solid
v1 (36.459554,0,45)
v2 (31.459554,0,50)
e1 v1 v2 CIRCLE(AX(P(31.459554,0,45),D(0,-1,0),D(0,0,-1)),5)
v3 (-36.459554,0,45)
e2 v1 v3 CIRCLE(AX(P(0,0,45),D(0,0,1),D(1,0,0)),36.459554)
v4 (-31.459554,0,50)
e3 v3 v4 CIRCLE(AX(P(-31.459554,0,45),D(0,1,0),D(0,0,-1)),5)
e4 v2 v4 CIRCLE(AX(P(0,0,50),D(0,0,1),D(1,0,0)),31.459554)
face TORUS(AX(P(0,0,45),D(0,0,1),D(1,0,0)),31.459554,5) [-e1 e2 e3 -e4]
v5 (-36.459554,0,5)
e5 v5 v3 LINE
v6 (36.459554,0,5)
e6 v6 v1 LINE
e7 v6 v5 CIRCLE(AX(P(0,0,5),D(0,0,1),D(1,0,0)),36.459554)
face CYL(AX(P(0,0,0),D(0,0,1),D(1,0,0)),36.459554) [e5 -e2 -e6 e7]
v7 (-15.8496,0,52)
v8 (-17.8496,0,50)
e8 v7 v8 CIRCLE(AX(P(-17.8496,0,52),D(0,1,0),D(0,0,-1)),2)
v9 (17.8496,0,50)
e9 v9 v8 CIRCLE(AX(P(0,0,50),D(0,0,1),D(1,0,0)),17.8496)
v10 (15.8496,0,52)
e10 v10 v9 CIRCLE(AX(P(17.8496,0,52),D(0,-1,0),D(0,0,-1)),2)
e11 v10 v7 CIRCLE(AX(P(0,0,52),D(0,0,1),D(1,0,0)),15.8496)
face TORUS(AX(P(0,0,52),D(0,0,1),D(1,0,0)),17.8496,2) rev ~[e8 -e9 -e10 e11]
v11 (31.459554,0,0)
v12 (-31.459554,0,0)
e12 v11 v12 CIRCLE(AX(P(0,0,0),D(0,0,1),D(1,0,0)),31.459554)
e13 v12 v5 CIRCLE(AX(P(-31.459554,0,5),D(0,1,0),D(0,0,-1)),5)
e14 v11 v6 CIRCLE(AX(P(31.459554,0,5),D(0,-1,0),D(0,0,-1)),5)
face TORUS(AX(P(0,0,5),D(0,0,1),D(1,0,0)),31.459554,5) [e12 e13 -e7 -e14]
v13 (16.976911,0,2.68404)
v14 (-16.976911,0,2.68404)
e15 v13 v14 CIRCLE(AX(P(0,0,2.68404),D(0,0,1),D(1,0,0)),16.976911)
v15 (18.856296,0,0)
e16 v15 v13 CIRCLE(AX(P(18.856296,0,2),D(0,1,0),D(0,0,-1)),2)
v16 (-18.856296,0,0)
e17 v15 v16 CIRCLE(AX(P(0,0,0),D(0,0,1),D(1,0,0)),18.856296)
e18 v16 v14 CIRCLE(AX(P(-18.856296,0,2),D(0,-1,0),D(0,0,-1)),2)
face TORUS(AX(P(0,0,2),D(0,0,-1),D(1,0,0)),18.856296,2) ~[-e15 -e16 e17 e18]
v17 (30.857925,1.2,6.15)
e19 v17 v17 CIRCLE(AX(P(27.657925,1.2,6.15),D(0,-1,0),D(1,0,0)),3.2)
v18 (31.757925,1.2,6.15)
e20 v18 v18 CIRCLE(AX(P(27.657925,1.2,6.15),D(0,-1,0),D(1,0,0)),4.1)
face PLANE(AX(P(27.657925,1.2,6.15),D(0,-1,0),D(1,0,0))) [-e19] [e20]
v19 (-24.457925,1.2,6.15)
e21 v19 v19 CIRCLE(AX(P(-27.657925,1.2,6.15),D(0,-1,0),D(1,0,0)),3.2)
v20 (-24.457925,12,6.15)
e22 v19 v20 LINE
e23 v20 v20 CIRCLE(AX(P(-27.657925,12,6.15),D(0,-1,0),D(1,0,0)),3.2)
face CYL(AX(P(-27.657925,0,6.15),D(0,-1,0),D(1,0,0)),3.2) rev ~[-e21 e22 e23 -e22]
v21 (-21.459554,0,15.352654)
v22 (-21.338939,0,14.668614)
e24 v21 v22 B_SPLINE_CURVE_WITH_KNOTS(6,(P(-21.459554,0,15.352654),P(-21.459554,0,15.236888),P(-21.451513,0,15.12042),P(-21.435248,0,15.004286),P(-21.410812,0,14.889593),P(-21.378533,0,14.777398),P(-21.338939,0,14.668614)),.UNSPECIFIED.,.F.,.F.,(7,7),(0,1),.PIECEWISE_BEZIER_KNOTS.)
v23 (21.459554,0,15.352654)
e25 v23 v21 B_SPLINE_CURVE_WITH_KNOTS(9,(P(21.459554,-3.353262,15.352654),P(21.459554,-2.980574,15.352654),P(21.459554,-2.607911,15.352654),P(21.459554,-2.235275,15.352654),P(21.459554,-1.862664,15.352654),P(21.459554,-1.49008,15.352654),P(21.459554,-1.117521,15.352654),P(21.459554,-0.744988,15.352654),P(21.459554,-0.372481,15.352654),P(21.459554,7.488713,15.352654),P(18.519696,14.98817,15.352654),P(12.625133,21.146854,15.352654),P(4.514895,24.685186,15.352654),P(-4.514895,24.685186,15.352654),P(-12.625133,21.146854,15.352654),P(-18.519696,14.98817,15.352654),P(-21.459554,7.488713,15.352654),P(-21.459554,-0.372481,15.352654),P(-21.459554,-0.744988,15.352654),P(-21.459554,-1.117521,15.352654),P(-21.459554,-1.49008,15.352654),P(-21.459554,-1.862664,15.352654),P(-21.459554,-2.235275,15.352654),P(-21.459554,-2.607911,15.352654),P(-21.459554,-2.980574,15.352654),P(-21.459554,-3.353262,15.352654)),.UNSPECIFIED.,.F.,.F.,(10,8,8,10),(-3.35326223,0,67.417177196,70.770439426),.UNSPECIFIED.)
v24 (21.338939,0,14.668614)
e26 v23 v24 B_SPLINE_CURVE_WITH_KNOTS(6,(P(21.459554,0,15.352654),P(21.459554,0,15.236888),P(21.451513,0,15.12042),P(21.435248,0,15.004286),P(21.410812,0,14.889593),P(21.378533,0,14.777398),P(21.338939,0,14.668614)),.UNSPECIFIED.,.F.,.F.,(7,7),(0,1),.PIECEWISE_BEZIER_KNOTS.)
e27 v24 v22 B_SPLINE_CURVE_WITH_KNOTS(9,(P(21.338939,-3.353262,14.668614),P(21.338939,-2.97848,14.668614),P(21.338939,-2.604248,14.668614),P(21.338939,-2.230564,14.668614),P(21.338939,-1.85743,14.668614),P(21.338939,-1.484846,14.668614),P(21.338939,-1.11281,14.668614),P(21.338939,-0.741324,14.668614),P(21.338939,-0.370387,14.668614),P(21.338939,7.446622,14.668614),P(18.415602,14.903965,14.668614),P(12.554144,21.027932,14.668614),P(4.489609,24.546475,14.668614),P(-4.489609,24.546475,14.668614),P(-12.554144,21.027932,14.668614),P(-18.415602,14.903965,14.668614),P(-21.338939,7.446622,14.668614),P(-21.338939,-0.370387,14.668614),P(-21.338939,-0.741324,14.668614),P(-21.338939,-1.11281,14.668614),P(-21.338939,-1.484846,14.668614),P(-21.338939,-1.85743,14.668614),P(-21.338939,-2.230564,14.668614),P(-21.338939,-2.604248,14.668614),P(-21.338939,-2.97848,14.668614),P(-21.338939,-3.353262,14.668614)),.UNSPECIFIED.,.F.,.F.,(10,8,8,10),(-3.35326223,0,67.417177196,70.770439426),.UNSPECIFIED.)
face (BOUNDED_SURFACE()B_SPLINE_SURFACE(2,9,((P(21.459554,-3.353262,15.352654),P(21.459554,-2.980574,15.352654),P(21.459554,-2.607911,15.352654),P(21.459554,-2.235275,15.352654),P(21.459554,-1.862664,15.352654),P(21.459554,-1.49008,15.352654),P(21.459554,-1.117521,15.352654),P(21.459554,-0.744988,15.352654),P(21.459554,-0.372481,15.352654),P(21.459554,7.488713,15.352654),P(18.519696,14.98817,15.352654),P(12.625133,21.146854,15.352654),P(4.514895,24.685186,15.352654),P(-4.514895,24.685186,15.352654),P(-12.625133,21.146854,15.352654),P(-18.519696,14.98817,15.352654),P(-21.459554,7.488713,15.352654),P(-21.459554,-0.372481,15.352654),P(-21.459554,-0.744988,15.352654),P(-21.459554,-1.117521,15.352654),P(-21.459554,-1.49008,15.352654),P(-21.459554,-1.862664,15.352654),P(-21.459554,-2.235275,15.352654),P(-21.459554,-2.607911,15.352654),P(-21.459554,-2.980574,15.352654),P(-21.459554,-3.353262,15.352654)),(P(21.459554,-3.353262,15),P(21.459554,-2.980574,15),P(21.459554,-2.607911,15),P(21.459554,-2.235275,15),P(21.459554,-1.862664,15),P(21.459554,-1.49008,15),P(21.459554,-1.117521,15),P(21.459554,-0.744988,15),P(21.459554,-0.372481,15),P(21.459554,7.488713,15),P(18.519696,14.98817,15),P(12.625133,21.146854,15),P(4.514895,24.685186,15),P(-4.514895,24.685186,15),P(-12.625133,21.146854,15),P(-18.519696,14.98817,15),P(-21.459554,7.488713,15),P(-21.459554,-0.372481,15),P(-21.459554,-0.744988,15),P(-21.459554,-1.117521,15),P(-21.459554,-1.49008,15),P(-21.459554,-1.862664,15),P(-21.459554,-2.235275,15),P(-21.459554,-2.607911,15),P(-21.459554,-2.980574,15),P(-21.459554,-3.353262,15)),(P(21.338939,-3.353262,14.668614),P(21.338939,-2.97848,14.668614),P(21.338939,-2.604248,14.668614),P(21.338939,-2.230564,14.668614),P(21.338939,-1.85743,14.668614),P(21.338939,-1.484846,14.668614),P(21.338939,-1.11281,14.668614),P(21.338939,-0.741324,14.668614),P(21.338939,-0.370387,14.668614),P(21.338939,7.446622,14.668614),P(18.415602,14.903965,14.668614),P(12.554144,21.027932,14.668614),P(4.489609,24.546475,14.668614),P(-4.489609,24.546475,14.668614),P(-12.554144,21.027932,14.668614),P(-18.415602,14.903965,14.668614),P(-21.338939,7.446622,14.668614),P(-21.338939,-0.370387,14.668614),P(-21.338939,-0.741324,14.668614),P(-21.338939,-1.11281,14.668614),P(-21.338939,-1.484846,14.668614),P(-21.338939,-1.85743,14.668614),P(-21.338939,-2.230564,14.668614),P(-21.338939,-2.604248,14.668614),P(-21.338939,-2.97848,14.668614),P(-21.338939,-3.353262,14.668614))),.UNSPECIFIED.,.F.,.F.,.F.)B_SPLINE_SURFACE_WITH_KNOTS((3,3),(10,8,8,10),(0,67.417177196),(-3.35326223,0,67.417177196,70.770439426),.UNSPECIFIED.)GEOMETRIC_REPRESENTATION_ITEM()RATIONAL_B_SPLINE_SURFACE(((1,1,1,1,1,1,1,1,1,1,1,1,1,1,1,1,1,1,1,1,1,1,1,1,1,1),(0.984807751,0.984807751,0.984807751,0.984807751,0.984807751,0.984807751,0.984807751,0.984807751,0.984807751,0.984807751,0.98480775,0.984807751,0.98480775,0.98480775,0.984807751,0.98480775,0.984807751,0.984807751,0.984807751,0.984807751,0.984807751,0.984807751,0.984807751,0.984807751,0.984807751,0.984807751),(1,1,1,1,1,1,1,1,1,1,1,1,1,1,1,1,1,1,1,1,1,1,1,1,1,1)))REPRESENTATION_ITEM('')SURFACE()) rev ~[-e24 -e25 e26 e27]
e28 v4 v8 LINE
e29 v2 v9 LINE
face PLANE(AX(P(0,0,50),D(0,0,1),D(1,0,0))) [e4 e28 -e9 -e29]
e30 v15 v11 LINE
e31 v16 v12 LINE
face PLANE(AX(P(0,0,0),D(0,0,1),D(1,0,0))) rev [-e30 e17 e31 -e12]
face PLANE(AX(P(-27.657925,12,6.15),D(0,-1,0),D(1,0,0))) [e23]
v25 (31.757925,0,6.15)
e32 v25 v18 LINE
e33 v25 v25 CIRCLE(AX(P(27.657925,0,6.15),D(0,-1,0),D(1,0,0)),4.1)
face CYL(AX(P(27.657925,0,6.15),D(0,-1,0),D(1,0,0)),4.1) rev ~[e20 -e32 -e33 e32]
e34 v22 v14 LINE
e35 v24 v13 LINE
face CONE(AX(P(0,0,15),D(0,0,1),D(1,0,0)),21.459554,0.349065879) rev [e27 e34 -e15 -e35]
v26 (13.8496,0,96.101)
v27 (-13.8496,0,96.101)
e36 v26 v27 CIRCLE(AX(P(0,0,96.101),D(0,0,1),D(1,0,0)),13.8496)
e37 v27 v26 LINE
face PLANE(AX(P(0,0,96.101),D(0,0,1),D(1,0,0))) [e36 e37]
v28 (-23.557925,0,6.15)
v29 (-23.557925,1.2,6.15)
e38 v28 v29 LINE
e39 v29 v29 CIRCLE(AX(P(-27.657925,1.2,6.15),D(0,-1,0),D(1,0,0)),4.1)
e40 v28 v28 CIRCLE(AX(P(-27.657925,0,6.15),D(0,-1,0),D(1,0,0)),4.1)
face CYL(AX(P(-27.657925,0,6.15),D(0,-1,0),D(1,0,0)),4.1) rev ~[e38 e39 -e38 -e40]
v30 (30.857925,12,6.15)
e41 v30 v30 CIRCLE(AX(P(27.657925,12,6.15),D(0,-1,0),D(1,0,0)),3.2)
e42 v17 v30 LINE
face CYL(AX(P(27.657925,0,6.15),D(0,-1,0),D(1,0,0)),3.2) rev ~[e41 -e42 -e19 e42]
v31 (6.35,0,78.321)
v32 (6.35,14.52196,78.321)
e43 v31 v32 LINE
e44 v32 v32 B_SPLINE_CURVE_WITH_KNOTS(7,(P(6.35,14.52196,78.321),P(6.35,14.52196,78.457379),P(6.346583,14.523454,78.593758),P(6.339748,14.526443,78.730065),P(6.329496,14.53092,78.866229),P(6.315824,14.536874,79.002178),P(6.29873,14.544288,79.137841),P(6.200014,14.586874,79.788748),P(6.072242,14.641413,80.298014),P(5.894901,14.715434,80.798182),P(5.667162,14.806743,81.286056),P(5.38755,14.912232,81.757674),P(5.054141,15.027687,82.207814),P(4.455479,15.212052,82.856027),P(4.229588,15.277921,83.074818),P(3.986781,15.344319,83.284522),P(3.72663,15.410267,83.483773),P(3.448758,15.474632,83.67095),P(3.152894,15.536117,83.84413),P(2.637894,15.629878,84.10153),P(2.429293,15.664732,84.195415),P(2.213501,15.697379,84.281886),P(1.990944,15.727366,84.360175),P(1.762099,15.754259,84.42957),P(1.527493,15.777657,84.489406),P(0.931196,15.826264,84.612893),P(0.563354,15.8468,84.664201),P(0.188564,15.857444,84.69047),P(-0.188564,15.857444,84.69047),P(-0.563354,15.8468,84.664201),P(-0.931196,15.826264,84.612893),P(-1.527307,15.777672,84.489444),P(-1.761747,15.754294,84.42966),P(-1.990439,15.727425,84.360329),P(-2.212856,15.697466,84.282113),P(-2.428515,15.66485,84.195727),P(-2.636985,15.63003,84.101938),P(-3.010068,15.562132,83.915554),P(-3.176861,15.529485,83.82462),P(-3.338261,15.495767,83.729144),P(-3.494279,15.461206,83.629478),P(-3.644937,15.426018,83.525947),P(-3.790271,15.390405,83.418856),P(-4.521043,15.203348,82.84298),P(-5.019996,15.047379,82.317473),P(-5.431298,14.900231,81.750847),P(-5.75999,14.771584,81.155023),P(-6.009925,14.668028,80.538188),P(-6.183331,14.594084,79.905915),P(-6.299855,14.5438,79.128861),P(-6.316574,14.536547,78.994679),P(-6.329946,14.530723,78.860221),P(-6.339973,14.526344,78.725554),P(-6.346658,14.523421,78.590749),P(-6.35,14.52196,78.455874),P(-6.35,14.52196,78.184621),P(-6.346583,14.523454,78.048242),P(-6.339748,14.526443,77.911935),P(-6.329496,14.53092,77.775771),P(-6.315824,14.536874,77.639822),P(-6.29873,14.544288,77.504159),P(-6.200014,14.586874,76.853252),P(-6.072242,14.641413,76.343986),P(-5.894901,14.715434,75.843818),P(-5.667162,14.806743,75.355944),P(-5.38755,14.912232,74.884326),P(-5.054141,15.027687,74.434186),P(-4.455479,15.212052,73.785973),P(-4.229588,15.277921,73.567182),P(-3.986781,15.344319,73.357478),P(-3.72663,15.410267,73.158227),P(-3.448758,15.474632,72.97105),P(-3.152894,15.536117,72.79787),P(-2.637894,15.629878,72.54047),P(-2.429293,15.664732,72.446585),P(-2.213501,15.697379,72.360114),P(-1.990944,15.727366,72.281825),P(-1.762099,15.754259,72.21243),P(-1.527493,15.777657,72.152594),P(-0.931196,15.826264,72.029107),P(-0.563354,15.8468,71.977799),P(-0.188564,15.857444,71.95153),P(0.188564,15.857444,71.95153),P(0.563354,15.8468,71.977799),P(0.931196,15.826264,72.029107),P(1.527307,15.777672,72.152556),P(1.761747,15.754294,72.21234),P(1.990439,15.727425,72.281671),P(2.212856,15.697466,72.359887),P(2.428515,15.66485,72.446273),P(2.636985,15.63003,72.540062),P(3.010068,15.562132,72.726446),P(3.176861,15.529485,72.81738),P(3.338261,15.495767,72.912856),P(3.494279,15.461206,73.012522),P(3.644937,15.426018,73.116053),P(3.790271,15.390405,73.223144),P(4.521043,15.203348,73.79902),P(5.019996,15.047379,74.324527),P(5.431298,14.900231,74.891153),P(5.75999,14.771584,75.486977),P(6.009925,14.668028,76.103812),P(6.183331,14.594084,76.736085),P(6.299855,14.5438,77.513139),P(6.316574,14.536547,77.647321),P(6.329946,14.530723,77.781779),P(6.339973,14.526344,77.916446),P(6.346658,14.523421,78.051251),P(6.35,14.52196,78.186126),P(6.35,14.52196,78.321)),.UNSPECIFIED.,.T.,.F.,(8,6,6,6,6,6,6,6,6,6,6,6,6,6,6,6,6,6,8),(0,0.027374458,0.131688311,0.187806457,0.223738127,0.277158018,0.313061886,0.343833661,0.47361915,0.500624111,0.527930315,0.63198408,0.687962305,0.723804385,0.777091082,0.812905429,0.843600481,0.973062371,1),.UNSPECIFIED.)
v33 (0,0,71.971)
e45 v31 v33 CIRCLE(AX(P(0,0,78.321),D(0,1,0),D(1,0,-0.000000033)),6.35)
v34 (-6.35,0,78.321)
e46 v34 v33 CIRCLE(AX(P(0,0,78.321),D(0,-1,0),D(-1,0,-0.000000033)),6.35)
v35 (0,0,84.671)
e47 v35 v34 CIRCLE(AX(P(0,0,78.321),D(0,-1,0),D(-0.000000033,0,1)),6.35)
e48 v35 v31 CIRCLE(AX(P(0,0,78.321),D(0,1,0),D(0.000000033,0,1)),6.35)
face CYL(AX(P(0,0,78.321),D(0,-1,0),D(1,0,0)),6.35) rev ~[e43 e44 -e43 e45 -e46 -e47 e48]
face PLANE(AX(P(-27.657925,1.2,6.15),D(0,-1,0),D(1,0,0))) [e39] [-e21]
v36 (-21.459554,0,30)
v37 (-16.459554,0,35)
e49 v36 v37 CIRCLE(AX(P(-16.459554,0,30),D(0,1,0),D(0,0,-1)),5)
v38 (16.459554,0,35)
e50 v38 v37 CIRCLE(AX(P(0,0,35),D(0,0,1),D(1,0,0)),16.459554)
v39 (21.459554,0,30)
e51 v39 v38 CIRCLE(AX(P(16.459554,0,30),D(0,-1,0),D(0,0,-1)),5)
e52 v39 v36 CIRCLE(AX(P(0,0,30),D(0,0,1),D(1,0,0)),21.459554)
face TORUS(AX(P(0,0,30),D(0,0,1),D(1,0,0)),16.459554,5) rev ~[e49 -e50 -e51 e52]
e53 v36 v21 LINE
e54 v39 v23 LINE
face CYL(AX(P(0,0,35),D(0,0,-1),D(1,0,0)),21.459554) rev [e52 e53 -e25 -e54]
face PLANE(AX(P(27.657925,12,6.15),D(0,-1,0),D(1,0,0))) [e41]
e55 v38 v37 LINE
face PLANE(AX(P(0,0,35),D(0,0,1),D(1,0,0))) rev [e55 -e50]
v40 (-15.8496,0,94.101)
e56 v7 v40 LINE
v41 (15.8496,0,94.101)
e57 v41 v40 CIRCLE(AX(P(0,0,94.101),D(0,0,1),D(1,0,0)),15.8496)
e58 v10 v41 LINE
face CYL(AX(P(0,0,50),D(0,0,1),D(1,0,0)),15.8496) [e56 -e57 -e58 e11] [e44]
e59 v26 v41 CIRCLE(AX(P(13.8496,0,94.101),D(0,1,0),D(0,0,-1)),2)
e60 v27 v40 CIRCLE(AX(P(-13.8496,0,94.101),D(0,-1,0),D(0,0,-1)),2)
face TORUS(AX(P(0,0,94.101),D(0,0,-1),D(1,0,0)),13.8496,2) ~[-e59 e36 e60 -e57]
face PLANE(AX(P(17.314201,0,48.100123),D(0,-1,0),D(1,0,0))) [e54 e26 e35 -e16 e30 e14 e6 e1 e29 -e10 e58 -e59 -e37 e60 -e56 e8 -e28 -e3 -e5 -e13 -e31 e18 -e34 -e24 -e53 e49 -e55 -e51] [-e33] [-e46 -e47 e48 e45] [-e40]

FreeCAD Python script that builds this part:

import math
import FreeCAD as App
import Part
import Sketcher
Q = App.Units.Quantity


def edges_at(feature, points):
    """Names of the edges that pass closest to the given points."""
    edges = feature.Shape.Edges
    near = lambda p: min(range(len(edges)), key=lambda i: edges[i].distToShape(Part.Vertex(*p))[0])
    return sorted({f"Edge{near(p) + 1}" for p in points})

doc = App.newDocument("Part")
body = doc.addObject("PartDesign::Body", "Body")

# Sketch on XZ plane
sketch1 = body.newObject("Sketcher::SketchObject", "Sketch")
sketch1.AttachmentSupport = (doc.getObject("XZ_Plane"), [""])
sketch1.MapMode = "FlatFace"
sketch1.addGeometry([
    Part.LineSegment(App.Vector(21, 35, 0), App.Vector(21, 15, 0)),  # 0
    Part.LineSegment(App.Vector(21, 15, 0), App.Vector(16, 0, 0)),  # 1
    Part.LineSegment(App.Vector(16, 0, 0), App.Vector(36, 0, 0)),  # 2
    Part.LineSegment(App.Vector(36, 0, 0), App.Vector(36, 50, 0)),  # 3
    Part.LineSegment(App.Vector(36, 50, 0), App.Vector(16, 50, 0)),  # 4
    Part.LineSegment(App.Vector(16, 50, 0), App.Vector(16, 96, 0)),  # 5
    Part.LineSegment(App.Vector(16, 96, 0), App.Vector(0, 96, 0)),  # 6
    Part.LineSegment(App.Vector(0, 96, 0), App.Vector(0, 85, 0)),  # 7
    Part.ArcOfCircle(Part.Circle(App.Vector(0, 78, 0), App.Vector(0, 0, 1), 6), math.radians(0), math.radians(90)),  # 8
    Part.ArcOfCircle(Part.Circle(App.Vector(0, 78, 0), App.Vector(0, 0, 1), 6), math.radians(-90), math.radians(0)),  # 9
    Part.LineSegment(App.Vector(0, 72, 0), App.Vector(0, 35, 0)),  # 10
    Part.LineSegment(App.Vector(0, 35, 0), App.Vector(21, 35, 0)),  # 11
], False)
sketch1.addConstraint([
    Sketcher.Constraint("Coincident", 0, 2, 1, 1),
    Sketcher.Constraint("Coincident", 1, 2, 2, 1),
    Sketcher.Constraint("Coincident", 2, 2, 3, 1),
    Sketcher.Constraint("Coincident", 3, 2, 4, 1),
    Sketcher.Constraint("Coincident", 4, 2, 5, 1),
    Sketcher.Constraint("Coincident", 5, 2, 6, 1),
    Sketcher.Constraint("Coincident", 6, 2, 7, 1),
    Sketcher.Constraint("Coincident", 7, 2, 8, 2),
    Sketcher.Constraint("Tangent", 8, 1, 9, 2),
    Sketcher.Constraint("Coincident", 9, 1, 10, 1),
    Sketcher.Constraint("Coincident", 10, 2, 11, 1),
    Sketcher.Constraint("Coincident", 11, 2, 0, 1),
    Sketcher.Constraint("Vertical", 0),
    Sketcher.Constraint("Horizontal", 2),
    Sketcher.Constraint("Vertical", 3),
    Sketcher.Constraint("Horizontal", 4),
    Sketcher.Constraint("Vertical", 5),
    Sketcher.Constraint("Horizontal", 6),
    Sketcher.Constraint("Vertical", 7),
    Sketcher.Constraint("Vertical", 10),
    Sketcher.Constraint("Horizontal", 11),
    Sketcher.Constraint("Equal", 8, 9),
    Sketcher.Constraint("PointOnObject", 8, 3, -2),
    Sketcher.Constraint("PointOnObject", 1, 2, -1),
    Sketcher.Constraint("PointOnObject", 6, 2, -2),
    Sketcher.Constraint("PointOnObject", 9, 1, -2),
    Sketcher.Constraint("Horizontal", 9, 3, 8, 1),
    Sketcher.Constraint("DistanceY", 0, 2, 0, 1, 20.0),
    Sketcher.Constraint("DistanceY", 3, 1, 3, 2, 50.0),
    Sketcher.Constraint("Angle", 1, Q("-110.000002 deg")),
    Sketcher.Constraint("Radius", 8, 6.35),
    Sketcher.Constraint("DistanceY", -1, 1, 0, 2, 15.0),
    Sketcher.Constraint("DistanceX", -1, 1, 1, 2, 16.0),
    Sketcher.Constraint("DistanceX", 0, 2, 2, 2, 15.0),
    Sketcher.Constraint("DistanceY", 7, 2, 7, 1, 11.43),
    Sketcher.Constraint("DistanceY", 5, 1, 5, 2, 46.101),
    Sketcher.Constraint("DistanceX", 6, 2, 6, 1, 15.8496),
])
revolution = body.newObject("PartDesign::Revolution", "Revolution")
revolution.Profile = sketch1
revolution.ReferenceAxis = (sketch1, ["V_Axis"])
revolution.Angle = 180
doc.recompute()

fillet = body.newObject("PartDesign::Fillet", "Fillet")
fillet.Base = (revolution, edges_at(revolution, [
    (0, 15.85, 50),
    (0, 15.85, 96.101),
    (0, 16, 0),
    (0, 21.46, 15),
]))
fillet.Radius = 2

# Sketch on XZ plane
sketch2 = body.newObject("Sketcher::SketchObject", "Sketch001")
sketch2.AttachmentSupport = (doc.getObject("XZ_Plane"), [""])
sketch2.MapMode = "FlatFace"
sketch2.addGeometry([
    Part.Circle(App.Vector(27.7, 6.2, 0), App.Vector(0, 0, 1), 4.1),
    Part.Circle(App.Vector(-27.7, 6.2, 0), App.Vector(0, 0, 1), 4.1),
], False)
sketch2.addConstraint([
    Sketcher.Constraint("Equal", 0, 1),
    Sketcher.Constraint("Symmetric", 0, 3, 1, 3, -2),
    Sketcher.Constraint("Diameter", 0, 8.2),
    Sketcher.Constraint("DistanceY", -1, 1, 0, 3, 6.15),
    Sketcher.Constraint("DistanceX", 1, 3, 0, 3, 55.31585),
])
pocket1 = body.newObject("PartDesign::Pocket", "Pocket")
pocket1.Profile = sketch2
pocket1.Length = 1.2

# Sketch on XZ plane
sketch3 = body.newObject("Sketcher::SketchObject", "Sketch002")
sketch3.AttachmentSupport = (doc.getObject("XZ_Plane"), [""])
sketch3.MapMode = "FlatFace"
sketch3.addGeometry([
    Part.Circle(App.Vector(-27.7, 6.2, 0), App.Vector(0, 0, 1), 3.2),
    Part.Circle(App.Vector(27.7, 6.2, 0), App.Vector(0, 0, 1), 3.2),
], False)
sketch3.addConstraint([
    Sketcher.Constraint("Equal", 0, 1),
    Sketcher.Constraint("Symmetric", 0, 3, 1, 3, -2),
    Sketcher.Constraint("Diameter", 0, 6.4),
    Sketcher.Constraint("DistanceY", -1, 1, 0, 3, 6.15),
    Sketcher.Constraint("DistanceX", 0, 3, 1, 3, 55.31585),
])
pocket2 = body.newObject("PartDesign::Pocket", "Pocket001")
pocket2.Profile = sketch3
pocket2.Length = 12

# Sketch on XZ plane
sketch4 = body.newObject("Sketcher::SketchObject", "Sketch003")
sketch4.AttachmentSupport = (doc.getObject("XZ_Plane"), [""])
sketch4.MapMode = "FlatFace"
sketch4.addGeometry(Part.Circle(App.Vector(0, 78, 0), App.Vector(0, 0, 1), 6), False)
sketch4.addConstraint([
    Sketcher.Constraint("PointOnObject", 0, 3, -2),
    Sketcher.Constraint("Diameter", 0, 12.7),
    Sketcher.Constraint("DistanceY", -1, 1, 0, 3, 78.321),
])
pocket3 = body.newObject("PartDesign::Pocket", "Pocket002")
pocket3.Profile = sketch4
pocket3.Type = "ThroughAll"
doc.recompute()

fillet2 = body.newObject("PartDesign::Fillet", "Fillet001")
fillet2.Base = (pocket3, edges_at(pocket3, [(0, 36.46, 50), (0, 36.46, 0), (0, 21.46, 35)]))
fillet2.Radius = 5

doc.recompute()
